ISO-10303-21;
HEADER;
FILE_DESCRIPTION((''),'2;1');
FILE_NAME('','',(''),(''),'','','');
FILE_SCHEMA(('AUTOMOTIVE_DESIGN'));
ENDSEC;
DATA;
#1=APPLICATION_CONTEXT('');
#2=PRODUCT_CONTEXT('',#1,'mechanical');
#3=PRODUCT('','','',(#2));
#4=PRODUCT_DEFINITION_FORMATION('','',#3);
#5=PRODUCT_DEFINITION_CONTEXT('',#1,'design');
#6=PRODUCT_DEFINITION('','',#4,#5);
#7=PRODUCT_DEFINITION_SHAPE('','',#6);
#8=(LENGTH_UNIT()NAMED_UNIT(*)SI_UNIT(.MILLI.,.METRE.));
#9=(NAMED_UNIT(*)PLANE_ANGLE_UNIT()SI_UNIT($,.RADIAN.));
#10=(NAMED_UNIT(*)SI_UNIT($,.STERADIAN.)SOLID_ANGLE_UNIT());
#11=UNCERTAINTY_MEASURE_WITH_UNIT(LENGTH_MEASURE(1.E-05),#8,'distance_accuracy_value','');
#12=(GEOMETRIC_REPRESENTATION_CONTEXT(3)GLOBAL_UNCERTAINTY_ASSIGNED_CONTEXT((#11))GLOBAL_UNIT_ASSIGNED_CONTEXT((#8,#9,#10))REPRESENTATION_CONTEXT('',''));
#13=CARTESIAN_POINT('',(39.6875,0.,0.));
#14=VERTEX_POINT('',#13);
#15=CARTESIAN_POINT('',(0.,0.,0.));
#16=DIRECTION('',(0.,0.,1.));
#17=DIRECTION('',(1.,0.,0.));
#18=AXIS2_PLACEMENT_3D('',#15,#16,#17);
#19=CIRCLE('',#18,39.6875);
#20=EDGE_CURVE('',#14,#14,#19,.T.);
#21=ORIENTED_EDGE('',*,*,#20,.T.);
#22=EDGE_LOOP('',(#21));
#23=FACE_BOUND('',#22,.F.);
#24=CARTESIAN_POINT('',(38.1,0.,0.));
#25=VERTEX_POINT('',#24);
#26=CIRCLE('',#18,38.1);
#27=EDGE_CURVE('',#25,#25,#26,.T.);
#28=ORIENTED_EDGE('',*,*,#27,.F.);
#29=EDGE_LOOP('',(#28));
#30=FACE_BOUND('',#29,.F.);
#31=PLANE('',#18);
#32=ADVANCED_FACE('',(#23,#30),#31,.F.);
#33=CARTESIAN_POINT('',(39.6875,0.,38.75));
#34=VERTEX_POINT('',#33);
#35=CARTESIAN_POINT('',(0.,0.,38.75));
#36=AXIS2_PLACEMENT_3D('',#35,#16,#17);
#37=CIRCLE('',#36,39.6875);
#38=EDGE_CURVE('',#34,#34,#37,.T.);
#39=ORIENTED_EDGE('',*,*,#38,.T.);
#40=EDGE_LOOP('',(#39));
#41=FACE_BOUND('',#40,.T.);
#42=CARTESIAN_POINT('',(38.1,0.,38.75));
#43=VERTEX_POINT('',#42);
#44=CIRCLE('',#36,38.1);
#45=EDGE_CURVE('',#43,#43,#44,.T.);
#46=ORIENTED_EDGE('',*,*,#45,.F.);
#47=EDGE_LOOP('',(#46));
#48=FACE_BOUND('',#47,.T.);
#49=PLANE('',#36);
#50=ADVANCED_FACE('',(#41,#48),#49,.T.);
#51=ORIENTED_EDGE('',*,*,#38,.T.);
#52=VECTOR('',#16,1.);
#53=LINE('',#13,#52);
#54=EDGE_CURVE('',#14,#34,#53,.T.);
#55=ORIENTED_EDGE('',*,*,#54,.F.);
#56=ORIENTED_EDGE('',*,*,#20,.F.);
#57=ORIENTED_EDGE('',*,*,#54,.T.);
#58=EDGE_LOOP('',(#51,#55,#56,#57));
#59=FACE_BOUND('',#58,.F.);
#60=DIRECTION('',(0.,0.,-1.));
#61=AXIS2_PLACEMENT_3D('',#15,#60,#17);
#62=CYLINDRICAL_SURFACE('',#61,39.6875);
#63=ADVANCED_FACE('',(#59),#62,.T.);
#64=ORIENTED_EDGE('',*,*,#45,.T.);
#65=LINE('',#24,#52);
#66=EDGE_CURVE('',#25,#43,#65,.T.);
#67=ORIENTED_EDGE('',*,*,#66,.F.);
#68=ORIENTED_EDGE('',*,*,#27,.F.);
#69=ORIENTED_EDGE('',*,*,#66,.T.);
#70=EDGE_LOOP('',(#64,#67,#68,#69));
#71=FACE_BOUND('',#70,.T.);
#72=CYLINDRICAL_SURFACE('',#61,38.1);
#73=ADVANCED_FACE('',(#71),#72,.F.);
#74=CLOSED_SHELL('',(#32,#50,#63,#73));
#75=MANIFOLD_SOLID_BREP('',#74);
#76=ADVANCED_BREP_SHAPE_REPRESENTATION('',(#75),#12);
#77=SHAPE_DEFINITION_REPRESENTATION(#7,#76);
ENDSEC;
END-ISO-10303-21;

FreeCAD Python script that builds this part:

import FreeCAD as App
import Part
import Sketcher

V = App.Vector
Q = App.Units.Quantity

doc = App.newDocument("Part")
body = doc.addObject("PartDesign::Body", "Body")

sketch1 = doc.addObject("Sketcher::SketchObject", "Sketch")
body.addObject(sketch1)
sketch1.AttachmentSupport = (doc.XY_Plane, [""])
sketch1.MapMode = "FlatFace"
sketch1.addGeometry([
    Part.Circle(V(0, 0, 0), V(0, 0, 1), 40),
    Part.Circle(V(0, 0, 0), V(0, 0, 1), 38),
], False)
sketch1.addConstraint([
    Sketcher.Constraint("Coincident", 0, 3, -1, 1),
    Sketcher.Constraint("Coincident", 1, 3, -1, 1),
    Sketcher.Constraint("Diameter", 1, Q("3 in")),
    Sketcher.Constraint("Diameter", 0, Q("3.125 in")),
])
pad1 = doc.addObject("PartDesign::Pad", "Pad")
body.addObject(pad1)
pad1.Profile = sketch1
pad1.Length = Q("1.5255906 in")

doc.recompute()
